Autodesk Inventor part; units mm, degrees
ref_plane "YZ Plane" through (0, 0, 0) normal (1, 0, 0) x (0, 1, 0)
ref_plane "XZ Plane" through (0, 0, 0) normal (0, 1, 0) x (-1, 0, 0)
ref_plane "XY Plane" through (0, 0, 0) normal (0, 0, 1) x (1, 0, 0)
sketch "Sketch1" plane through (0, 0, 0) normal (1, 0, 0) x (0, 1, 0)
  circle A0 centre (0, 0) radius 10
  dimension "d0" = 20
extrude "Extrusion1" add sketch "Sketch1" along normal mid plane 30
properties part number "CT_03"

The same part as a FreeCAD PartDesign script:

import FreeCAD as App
import Part
import Sketcher
from FreeCAD import Vector

doc = App.newDocument("Part")
body = doc.addObject("PartDesign::Body", "Body")

# Sketch on YZ plane
sketch1 = body.newObject("Sketcher::SketchObject", "Sketch")
sketch1.AttachmentSupport = (doc.getObject("YZ_Plane"), [""])
sketch1.MapMode = "FlatFace"
sketch1.addGeometry(Part.Circle(Vector(0, 0, 0), Vector(0, 0, 1), 10), False)
sketch1.addConstraint(Sketcher.Constraint("Coincident", 0, 3, -1, 1))
sketch1.addConstraint(Sketcher.Constraint("Diameter", 0, 20.0))
pad1 = body.newObject("PartDesign::Pad", "Pad")
pad1.Profile = sketch1
pad1.Length = 30
pad1.Midplane = True

doc.recompute()
